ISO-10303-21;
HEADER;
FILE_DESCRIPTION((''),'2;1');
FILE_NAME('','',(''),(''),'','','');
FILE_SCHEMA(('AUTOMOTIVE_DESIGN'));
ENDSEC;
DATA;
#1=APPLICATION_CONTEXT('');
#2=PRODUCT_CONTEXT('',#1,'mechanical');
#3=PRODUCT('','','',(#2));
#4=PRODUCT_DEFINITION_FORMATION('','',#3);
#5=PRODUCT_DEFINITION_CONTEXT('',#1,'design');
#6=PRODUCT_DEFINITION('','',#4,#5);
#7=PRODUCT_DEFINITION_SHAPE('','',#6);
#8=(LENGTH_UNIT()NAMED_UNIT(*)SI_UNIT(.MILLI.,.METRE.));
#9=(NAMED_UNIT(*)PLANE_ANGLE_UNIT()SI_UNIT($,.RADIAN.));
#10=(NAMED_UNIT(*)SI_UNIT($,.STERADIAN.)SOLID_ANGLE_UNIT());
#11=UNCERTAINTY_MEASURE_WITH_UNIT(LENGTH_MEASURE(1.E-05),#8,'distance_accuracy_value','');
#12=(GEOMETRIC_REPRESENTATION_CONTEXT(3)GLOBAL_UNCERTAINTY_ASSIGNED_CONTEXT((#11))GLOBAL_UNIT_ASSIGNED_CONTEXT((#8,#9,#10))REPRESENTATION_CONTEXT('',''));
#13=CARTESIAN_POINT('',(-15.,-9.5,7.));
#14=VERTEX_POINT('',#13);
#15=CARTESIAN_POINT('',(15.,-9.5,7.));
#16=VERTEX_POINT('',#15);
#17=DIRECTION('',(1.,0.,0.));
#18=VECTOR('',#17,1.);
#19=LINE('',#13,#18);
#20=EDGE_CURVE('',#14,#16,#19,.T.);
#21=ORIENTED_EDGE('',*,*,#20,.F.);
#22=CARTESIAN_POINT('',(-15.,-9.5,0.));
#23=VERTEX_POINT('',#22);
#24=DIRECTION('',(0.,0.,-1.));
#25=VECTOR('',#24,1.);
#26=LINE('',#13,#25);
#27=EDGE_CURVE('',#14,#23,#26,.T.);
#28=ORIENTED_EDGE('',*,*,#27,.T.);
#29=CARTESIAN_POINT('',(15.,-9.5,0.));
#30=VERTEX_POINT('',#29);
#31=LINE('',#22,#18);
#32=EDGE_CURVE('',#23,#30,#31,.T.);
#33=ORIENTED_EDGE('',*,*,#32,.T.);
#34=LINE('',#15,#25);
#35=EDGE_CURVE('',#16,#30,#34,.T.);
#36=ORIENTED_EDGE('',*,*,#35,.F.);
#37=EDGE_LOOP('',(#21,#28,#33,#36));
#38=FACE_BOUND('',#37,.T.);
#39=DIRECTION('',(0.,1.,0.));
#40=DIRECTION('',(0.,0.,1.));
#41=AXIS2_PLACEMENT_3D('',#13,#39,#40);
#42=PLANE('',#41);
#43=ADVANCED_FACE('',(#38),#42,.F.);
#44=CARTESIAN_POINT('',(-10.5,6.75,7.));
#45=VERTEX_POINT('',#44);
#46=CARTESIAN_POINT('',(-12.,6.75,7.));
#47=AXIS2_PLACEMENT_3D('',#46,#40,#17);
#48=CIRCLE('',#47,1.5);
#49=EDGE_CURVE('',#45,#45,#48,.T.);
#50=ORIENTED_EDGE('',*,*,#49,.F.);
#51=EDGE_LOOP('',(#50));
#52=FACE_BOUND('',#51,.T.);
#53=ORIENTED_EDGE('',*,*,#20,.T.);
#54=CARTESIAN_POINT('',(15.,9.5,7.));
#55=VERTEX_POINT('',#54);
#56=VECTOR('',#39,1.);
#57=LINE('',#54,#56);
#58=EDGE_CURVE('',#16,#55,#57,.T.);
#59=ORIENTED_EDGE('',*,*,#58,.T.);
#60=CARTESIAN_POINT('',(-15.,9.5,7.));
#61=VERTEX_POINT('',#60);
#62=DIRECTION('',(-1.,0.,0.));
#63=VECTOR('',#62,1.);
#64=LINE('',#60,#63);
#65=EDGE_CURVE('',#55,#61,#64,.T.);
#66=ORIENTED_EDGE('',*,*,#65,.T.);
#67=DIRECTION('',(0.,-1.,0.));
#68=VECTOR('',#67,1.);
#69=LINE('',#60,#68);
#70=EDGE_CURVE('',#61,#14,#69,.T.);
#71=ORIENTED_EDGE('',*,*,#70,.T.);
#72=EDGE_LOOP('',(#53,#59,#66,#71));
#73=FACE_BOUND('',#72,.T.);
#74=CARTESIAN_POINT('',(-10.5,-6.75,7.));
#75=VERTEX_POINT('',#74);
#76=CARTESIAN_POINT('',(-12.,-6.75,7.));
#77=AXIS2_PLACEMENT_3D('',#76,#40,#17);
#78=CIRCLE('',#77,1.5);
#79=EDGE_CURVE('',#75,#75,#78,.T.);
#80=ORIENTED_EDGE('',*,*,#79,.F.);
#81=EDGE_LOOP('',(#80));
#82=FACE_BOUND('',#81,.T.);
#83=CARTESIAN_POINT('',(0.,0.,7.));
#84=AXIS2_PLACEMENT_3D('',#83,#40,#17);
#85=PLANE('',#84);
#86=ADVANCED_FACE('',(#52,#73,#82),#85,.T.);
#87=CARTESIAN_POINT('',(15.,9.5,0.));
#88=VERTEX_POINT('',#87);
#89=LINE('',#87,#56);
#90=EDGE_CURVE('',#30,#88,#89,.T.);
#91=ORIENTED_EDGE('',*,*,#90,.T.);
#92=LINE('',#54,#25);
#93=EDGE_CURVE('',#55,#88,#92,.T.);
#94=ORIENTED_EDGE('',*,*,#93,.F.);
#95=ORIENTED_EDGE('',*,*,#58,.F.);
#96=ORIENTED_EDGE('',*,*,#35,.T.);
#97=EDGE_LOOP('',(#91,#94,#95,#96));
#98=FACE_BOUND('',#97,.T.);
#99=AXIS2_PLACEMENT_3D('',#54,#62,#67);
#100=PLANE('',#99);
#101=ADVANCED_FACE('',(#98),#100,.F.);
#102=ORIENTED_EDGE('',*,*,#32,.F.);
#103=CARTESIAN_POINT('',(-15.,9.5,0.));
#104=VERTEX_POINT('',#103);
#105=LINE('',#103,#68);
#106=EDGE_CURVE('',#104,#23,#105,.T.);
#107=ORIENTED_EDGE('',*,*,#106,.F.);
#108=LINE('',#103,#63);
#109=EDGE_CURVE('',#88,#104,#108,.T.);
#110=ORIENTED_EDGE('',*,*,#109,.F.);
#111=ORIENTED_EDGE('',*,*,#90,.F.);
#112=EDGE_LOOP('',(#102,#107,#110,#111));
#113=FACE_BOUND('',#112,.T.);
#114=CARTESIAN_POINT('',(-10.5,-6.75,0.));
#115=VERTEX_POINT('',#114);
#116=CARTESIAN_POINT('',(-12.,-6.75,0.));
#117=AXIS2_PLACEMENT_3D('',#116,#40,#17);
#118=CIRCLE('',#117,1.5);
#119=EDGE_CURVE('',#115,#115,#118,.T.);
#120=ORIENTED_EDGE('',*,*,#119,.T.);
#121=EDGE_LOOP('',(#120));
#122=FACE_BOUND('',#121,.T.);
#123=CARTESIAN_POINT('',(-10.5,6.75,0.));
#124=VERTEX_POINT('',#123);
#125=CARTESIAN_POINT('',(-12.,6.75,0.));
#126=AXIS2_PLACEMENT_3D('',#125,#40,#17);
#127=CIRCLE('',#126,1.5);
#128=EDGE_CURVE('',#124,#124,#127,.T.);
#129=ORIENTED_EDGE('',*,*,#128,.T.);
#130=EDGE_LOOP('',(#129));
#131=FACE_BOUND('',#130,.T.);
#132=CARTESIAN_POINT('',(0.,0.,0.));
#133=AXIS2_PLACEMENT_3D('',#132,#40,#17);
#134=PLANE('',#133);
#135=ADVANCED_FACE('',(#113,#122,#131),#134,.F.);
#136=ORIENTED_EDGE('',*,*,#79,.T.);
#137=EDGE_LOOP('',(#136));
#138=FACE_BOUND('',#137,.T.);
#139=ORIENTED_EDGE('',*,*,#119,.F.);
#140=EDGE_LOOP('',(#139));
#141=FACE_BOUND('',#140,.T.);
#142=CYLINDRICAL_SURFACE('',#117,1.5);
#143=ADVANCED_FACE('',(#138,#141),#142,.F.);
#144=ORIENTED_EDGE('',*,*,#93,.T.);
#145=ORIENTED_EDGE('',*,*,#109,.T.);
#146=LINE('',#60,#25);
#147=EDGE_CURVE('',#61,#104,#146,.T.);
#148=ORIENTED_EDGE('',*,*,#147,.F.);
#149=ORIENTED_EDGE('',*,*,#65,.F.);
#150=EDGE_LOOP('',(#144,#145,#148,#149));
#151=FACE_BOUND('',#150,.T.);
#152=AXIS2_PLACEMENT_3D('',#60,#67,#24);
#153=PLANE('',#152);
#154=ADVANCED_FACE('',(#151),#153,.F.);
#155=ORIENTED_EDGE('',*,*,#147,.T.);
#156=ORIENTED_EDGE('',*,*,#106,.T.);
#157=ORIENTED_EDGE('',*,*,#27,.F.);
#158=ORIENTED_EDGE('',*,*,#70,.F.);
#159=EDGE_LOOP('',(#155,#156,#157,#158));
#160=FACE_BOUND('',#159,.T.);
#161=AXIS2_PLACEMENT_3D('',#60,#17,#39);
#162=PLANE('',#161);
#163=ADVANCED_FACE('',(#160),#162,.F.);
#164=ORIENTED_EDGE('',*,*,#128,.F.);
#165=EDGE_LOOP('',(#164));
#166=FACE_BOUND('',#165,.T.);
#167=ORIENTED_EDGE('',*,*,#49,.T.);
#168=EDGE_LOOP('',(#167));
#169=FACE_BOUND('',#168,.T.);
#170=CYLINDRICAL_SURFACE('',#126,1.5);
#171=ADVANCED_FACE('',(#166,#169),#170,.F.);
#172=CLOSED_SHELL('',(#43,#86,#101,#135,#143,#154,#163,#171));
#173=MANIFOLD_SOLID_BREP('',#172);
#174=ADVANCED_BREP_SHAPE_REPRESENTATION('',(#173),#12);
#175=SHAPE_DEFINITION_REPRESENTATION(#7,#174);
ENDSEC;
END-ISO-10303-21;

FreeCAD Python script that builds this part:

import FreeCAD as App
import Part
import Sketcher
Q = App.Units.Quantity


def add_polygon(sketch, points):
    """Adds a closed chain of lines whose ends are joined by coincident constraints."""
    first, n = sketch.GeometryCount, len(points)
    for a, b in zip(points, points[1:] + points[:1]):
        sketch.addGeometry(Part.LineSegment(App.Vector(*a, 0), App.Vector(*b, 0)), False)
    for i in range(n):
        sketch.addConstraint(Sketcher.Constraint("Coincident", first + i, 2, first + (i + 1) % n, 1))

doc = App.newDocument("Part")
body = doc.addObject("PartDesign::Body", "Body")

# Sketch on XY plane
sketch1 = body.newObject("Sketcher::SketchObject", "Sketch")
sketch1.AttachmentSupport = (doc.getObject("XY_Plane"), [""])
sketch1.MapMode = "FlatFace"
add_polygon(sketch1, [(-15, 10), (-15, -10), (15, -10), (15, 10)])  # lines 0-3
sketch1.addConstraint([
    Sketcher.Constraint("Vertical", 0),
    Sketcher.Constraint("Horizontal", 1),
    Sketcher.Constraint("Vertical", 2),
    Sketcher.Constraint("Horizontal", 3),
    Sketcher.Constraint("Symmetric", 0, 2, 2, 2, -1, 1),
    Sketcher.Constraint("DistanceX", 1, 1, 1, 2, Q("30 mm")),
    Sketcher.Constraint("DistanceY", 0, 2, 0, 1, Q("19 mm")),
])
pad1 = body.newObject("PartDesign::Pad", "Pad")
pad1.Profile = sketch1
pad1.Length = 7

# Sketch on XY plane
sketch2 = body.newObject("Sketcher::SketchObject", "Sketch001")
sketch2.AttachmentSupport = (doc.getObject("XY_Plane"), [""])
sketch2.MapMode = "FlatFace"
sketch2.AttachmentOffset = App.Placement(App.Vector(0, 0, 7), App.Rotation())
sketch2.addGeometry([
    Part.Circle(App.Vector(-12, 6.8, 0), App.Vector(0, 0, 1), 1.5),
    Part.Circle(App.Vector(-12, -6.8, 0), App.Vector(0, 0, 1), 1.5),
], False)
sketch2.addConstraint([
    Sketcher.Constraint("Equal", 0, 1),
    Sketcher.Constraint("Symmetric", 0, 3, 1, 3, -1),
    Sketcher.Constraint("Diameter", 0, Q("3 mm")),
    Sketcher.Constraint("DistanceX", 0, 3, -1, 1, Q("12 mm")),
    Sketcher.Constraint("DistanceY", 1, 3, 0, 3, Q("13.5 mm")),
])
pocket1 = body.newObject("PartDesign::Pocket", "Pocket")
pocket1.Profile = sketch2
pocket1.Type = "ThroughAll"

doc.recompute()
